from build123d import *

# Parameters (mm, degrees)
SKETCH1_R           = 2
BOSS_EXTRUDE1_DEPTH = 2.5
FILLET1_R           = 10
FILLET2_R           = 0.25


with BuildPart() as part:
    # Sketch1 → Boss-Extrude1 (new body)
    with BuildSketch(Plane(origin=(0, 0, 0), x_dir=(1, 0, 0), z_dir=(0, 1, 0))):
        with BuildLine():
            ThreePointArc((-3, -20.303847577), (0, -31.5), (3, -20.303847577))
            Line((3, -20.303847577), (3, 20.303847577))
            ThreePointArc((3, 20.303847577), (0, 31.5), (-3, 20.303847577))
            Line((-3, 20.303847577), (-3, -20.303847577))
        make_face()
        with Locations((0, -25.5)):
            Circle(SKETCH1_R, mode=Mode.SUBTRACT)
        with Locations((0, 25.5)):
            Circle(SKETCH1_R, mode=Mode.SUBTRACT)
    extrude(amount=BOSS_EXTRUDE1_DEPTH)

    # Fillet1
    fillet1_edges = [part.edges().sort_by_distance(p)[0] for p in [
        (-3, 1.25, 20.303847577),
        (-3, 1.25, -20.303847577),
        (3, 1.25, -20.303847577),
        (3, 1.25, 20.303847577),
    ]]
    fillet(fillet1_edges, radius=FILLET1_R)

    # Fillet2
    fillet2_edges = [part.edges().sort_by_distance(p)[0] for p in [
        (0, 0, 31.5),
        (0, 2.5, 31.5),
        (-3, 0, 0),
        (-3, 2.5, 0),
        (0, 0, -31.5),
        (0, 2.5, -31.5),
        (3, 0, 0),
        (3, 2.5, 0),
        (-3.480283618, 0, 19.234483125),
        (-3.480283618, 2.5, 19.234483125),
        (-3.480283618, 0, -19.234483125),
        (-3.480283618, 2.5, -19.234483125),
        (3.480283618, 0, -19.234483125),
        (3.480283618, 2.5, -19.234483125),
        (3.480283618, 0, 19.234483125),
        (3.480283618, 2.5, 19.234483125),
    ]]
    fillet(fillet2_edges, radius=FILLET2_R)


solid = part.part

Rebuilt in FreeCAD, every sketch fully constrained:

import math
import FreeCAD as App
import Part
import Sketcher
from FreeCAD import Vector


def edges_at(feature, points):
    """Names of the edges that pass closest to the given points."""
    edges = feature.Shape.Edges
    near = lambda p: min(range(len(edges)), key=lambda i: edges[i].distToShape(Part.Vertex(*p))[0])
    return sorted({f"Edge{near(p) + 1}" for p in points})

doc = App.newDocument("Part")
body = doc.addObject("PartDesign::Body", "Body")

# Sketch on XZ plane
sketch1 = body.newObject("Sketcher::SketchObject", "Sketch")
sketch1.AttachmentSupport = (doc.getObject("XZ_Plane"), [""])
sketch1.MapMode = "FlatFace"
sketch1.addGeometry([
    Part.ArcOfCircle(Part.Circle(Vector(0, 25.5, 0), Vector(0, 0, 1), 6), math.radians(-60), math.radians(240)),  # 0
    Part.LineSegment(Vector(3, 20.3, 0), Vector(3, -20.3, 0)),  # 1
    Part.ArcOfCircle(Part.Circle(Vector(0, -25.5, 0), Vector(0, 0, 1), 6), math.radians(120), math.radians(420)),  # 2
    Part.LineSegment(Vector(-3, -20.3, 0), Vector(-3, 20.3, 0)),  # 3
    Part.Circle(Vector(0, 25.5, 0), Vector(0, 0, 1), 2),  # 4
    Part.Circle(Vector(0, -25.5, 0), Vector(0, 0, 1), 2),  # 5
], False)
sketch1.addConstraint([
    Sketcher.Constraint("Coincident", 0, 1, 1, 1),
    Sketcher.Constraint("Coincident", 1, 2, 2, 2),
    Sketcher.Constraint("Coincident", 2, 1, 3, 1),
    Sketcher.Constraint("Coincident", 3, 2, 0, 2),
    Sketcher.Constraint("Vertical", 1),
    Sketcher.Constraint("Vertical", 3),
    Sketcher.Constraint("Coincident", 4, 3, 0, 3),
    Sketcher.Constraint("Coincident", 5, 3, 2, 3),
    Sketcher.Constraint("Equal", 0, 2),
    Sketcher.Constraint("Equal", 4, 5),
    Sketcher.Constraint("Symmetric", 0, 3, 2, 3, -1, 1),
    Sketcher.Constraint("Symmetric", 1, 2, 2, 1, -2),
    Sketcher.Constraint("Diameter", 4, 4.0),
    Sketcher.Constraint("Radius", 0, 6.0),
    Sketcher.Constraint("DistanceX", -1, 1, 0, 1, 3.0),
    Sketcher.Constraint("DistanceY", 2, 3, 0, 3, 51.0),
])
pad1 = body.newObject("PartDesign::Pad", "Pad")
pad1.Profile = sketch1
pad1.Length = 2.5
pad1.Reversed = True
doc.recompute()

fillet = body.newObject("PartDesign::Fillet", "Fillet")
fillet.Base = (pad1, edges_at(pad1, [
    (-3, 1.25, 20.304),
    (-3, 1.25, -20.304),
    (3, 1.25, -20.304),
    (3, 1.25, 20.304),
]))
fillet.Radius = 10
doc.recompute()

fillet2 = body.newObject("PartDesign::Fillet", "Fillet001")
fillet2.Base = (fillet, edges_at(fillet, [
    (0, 0, 31.5),
    (0, 2.5, 31.5),
    (-3, 0, 0),
    (-3, 2.5, 0),
    (0, 0, -31.5),
    (0, 2.5, -31.5),
    (3, 0, 0),
    (3, 2.5, 0),
    (-3.48, 0, 19.234),
    (-3.48, 2.5, 19.234),
    (-3.48, 0, -19.234),
    (-3.48, 2.5, -19.234),
    (3.48, 0, -19.234),
    (3.48, 2.5, -19.234),
    (3.48, 0, 19.234),
    (3.48, 2.5, 19.234),
]))
fillet2.Radius = 0.25

doc.recompute()
